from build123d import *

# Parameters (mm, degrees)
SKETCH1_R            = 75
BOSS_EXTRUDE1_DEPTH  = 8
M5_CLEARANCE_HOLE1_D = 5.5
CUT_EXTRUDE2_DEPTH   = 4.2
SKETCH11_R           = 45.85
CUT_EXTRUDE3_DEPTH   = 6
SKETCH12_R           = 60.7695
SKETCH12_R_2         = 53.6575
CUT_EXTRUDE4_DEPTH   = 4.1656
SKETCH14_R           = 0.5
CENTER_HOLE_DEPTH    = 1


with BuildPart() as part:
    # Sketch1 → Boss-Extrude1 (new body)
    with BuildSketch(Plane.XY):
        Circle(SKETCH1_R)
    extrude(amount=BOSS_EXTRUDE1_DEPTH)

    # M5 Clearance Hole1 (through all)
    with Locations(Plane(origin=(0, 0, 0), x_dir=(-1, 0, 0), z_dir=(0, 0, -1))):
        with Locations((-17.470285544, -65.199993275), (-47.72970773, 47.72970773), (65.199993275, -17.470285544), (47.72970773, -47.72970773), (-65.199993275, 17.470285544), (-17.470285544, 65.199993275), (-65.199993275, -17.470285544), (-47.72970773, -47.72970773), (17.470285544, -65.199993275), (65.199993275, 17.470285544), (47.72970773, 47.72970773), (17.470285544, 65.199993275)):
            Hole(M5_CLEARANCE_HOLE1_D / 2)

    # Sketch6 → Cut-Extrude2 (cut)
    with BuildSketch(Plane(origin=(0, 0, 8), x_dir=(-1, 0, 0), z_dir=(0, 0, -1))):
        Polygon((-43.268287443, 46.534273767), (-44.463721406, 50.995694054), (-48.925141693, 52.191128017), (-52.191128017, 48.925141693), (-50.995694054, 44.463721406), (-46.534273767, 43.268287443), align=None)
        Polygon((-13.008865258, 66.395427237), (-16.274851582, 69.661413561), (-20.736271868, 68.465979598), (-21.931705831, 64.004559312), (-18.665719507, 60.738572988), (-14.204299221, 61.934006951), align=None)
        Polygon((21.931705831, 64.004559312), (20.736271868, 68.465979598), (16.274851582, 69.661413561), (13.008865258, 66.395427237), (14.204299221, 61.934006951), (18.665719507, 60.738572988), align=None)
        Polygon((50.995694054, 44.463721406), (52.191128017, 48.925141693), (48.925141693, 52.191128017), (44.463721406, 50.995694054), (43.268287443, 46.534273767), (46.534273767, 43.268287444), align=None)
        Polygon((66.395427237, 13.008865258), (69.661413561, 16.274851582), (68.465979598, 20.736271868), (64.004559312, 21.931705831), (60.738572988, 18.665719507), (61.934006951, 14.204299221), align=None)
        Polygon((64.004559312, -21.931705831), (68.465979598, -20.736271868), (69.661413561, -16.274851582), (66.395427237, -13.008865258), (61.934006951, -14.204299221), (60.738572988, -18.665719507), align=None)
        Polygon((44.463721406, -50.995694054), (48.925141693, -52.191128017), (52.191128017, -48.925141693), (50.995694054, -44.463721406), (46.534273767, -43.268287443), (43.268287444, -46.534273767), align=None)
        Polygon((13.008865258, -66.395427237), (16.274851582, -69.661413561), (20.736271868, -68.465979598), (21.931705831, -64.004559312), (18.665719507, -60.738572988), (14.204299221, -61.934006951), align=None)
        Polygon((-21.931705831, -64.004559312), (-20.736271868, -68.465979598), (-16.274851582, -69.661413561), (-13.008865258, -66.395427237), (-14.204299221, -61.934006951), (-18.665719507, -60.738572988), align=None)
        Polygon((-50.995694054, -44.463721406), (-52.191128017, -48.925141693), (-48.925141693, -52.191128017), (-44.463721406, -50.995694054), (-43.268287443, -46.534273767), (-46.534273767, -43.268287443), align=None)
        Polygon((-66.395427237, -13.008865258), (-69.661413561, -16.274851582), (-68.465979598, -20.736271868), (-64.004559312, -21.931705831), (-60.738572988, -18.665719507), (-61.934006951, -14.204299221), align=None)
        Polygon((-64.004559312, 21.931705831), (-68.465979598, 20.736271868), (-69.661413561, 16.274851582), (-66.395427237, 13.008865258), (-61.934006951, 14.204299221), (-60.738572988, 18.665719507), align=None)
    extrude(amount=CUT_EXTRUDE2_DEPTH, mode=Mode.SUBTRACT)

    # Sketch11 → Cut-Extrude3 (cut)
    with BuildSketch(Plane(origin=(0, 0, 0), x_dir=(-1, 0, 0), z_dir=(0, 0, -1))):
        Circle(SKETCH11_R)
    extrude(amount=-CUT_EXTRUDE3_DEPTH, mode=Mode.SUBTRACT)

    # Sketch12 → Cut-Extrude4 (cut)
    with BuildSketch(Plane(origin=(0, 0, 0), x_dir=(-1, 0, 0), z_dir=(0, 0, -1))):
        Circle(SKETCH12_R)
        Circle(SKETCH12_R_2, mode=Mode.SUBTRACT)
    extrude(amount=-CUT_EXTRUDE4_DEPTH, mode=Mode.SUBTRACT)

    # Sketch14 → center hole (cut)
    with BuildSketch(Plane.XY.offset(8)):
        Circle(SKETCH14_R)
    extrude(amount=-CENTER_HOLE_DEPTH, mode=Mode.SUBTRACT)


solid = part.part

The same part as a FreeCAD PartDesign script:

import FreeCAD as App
import Part
import Sketcher

V = App.Vector
Q = App.Units.Quantity


def add_polygon(sketch, points):
    """Adds a closed chain of lines whose ends are joined by coincident constraints."""
    first, n = sketch.GeometryCount, len(points)
    for a, b in zip(points, points[1:] + points[:1]):
        sketch.addGeometry(Part.LineSegment(App.Vector(*a, 0), App.Vector(*b, 0)), False)
    for i in range(n):
        sketch.addConstraint(Sketcher.Constraint("Coincident", first + i, 2, first + (i + 1) % n, 1))

doc = App.newDocument("Part")
params = doc.addObject("Spreadsheet::Sheet", "Params")
for row, (alias, value) in enumerate([
    ("sketch1_diameter", "150 mm"),
    ("pad1_length", "8 mm"),
    ("sketch2_diameter", "5.5 mm"),
    ("hole_diameter", "5.5 mm"),
    ("pocket1_length", "4.2 mm"),
    ("sketch4_diameter", "91.7 mm"),
    ("pocket2_length", "6 mm"),
    ("pocket3_length", "4.1656 mm"),
    ("sketch6_diameter", "1 mm"),
    ("pocket4_length", "1 mm"),
], start=1):
    params.set(f"A{row}", alias)
    params.set(f"B{row}", "=" + value)
    params.setAlias(f"B{row}", alias)

body = doc.addObject("PartDesign::Body", "Body")

# Sketch on XY plane
sketch1 = body.newObject("Sketcher::SketchObject", "Sketch")
sketch1.AttachmentSupport = (doc.getObject("XY_Plane"), [""])
sketch1.MapMode = "FlatFace"
sketch1.addGeometry(Part.Circle(V(0, 0, 0), V(0, 0, 1), 75), False)
sketch1.addConstraint([
    Sketcher.Constraint("Coincident", 0, 3, -1, 1),
    Sketcher.Constraint("Diameter", 0, 150.0),
])
sketch1.setExpression("Constraints[1]", "Params.sketch1_diameter")
pad1 = body.newObject("PartDesign::Pad", "Pad")
pad1.Profile = sketch1
pad1.setExpression("Length", "Params.pad1_length")

# Sketch on XY plane
sketch2 = body.newObject("Sketcher::SketchObject", "Sketch001")
sketch2.AttachmentSupport = (doc.getObject("XY_Plane"), [""])
sketch2.MapMode = "FlatFace"
sketch2.addGeometry([
    Part.Circle(V(17.470286, -65.199993, 0), V(0, 0, 1), 2.75),  # 0
    Part.Circle(V(47.729708, 47.729708, 0), V(0, 0, 1), 2.75),  # 1
    Part.Circle(V(-65.199993, -17.470286, 0), V(0, 0, 1), 2.75),  # 2
    Part.Circle(V(-47.729708, -47.729708, 0), V(0, 0, 1), 2.75),  # 3
    Part.Circle(V(65.199993, 17.470286, 0), V(0, 0, 1), 2.75),  # 4
    Part.Circle(V(17.470286, 65.199993, 0), V(0, 0, 1), 2.75),  # 5
    Part.Circle(V(65.199993, -17.470286, 0), V(0, 0, 1), 2.75),  # 6
    Part.Circle(V(47.729708, -47.729708, 0), V(0, 0, 1), 2.75),  # 7
    Part.Circle(V(-17.470286, -65.199993, 0), V(0, 0, 1), 2.75),  # 8
    Part.Circle(V(-65.199993, 17.470286, 0), V(0, 0, 1), 2.75),  # 9
    Part.Circle(V(-47.729708, 47.729708, 0), V(0, 0, 1), 2.75),  # 10
    Part.Circle(V(-17.470286, 65.199993, 0), V(0, 0, 1), 2.75),  # 11
], False)
sketch2.addConstraint([
    Sketcher.Constraint("Equal", 0, 1),
    Sketcher.Constraint("Equal", 1, 2),
    Sketcher.Constraint("Equal", 2, 3),
    Sketcher.Constraint("Equal", 3, 4),
    Sketcher.Constraint("Equal", 4, 5),
    Sketcher.Constraint("Equal", 5, 6),
    Sketcher.Constraint("Equal", 6, 7),
    Sketcher.Constraint("Equal", 7, 8),
    Sketcher.Constraint("Equal", 8, 9),
    Sketcher.Constraint("Equal", 9, 10),
    Sketcher.Constraint("Equal", 10, 11),
    Sketcher.Constraint("Symmetric", 1, 3, 3, 3, -1, 1),
    Sketcher.Constraint("Symmetric", 2, 3, 4, 3, -1, 1),
    Sketcher.Constraint("Symmetric", 5, 3, 8, 3, -1, 1),
    Sketcher.Constraint("Symmetric", 6, 3, 9, 3, -1, 1),
    Sketcher.Constraint("Symmetric", 7, 3, 10, 3, -1, 1),
    Sketcher.Constraint("Symmetric", 0, 3, 11, 3, -1, 1),
    Sketcher.Constraint("Symmetric", 2, 3, 6, 3, -2),
    Sketcher.Constraint("Symmetric", 3, 3, 7, 3, -2),
    Sketcher.Constraint("Symmetric", 0, 3, 8, 3, -2),
    Sketcher.Constraint("Diameter", 0, 5.5),
    Sketcher.Constraint("DistanceY", 0, 3, 1, 3, 112.929701),
    Sketcher.Constraint("DistanceX", 2, 3, 1, 3, 112.929701),
    Sketcher.Constraint("DistanceX", 2, 3, 0, 3, 82.670279),
    Sketcher.Constraint("DistanceY", 0, 3, 4, 3, 82.670279),
    Sketcher.Constraint("DistanceY", 2, 3, 4, 3, 34.940571),
    Sketcher.Constraint("DistanceX", 8, 3, 0, 3, 34.940571),
])
sketch2.setExpression("Constraints[20]", "Params.sketch2_diameter")
doc.recompute()
hole = body.newObject("PartDesign::Hole", "Hole")
hole.Profile = sketch2
hole.ThreadType = "None"
hole.setExpression("Diameter", "Params.hole_diameter")
hole.DepthType = "ThroughAll"
hole.Reversed = True

# Sketch on XY plane
sketch3 = body.newObject("Sketcher::SketchObject", "Sketch002")
sketch3.AttachmentSupport = (doc.getObject("XY_Plane"), [""])
sketch3.MapMode = "FlatFace"
sketch3.AttachmentOffset = App.Placement(V(0, 0, 8), App.Rotation())
add_polygon(sketch3, [(43.268287, 46.534274), (44.463721, 50.995694), (48.925142, 52.191128), (52.191128, 48.925142), (50.995694, 44.463721), (46.534274, 43.268287)])  # lines 0-5
add_polygon(sketch3, [(13.008865, 66.395427), (16.274852, 69.661414), (20.736272, 68.46598), (21.931706, 64.004559), (18.66572, 60.738573), (14.204299, 61.934007)])  # lines 6-11
add_polygon(sketch3, [(-21.931706, 64.004559), (-20.736272, 68.46598), (-16.274852, 69.661414), (-13.008865, 66.395427), (-14.204299, 61.934007), (-18.66572, 60.738573)])  # lines 12-17
add_polygon(sketch3, [(-50.995694, 44.463721), (-52.191128, 48.925142), (-48.925142, 52.191128), (-44.463721, 50.995694), (-43.268287, 46.534274), (-46.534274, 43.268287)])  # lines 18-23
add_polygon(sketch3, [(-66.395427, 13.008865), (-69.661414, 16.274852), (-68.46598, 20.736272), (-64.004559, 21.931706), (-60.738573, 18.66572), (-61.934007, 14.204299)])  # lines 24-29
add_polygon(sketch3, [(-64.004559, -21.931706), (-68.46598, -20.736272), (-69.661414, -16.274852), (-66.395427, -13.008865), (-61.934007, -14.204299), (-60.738573, -18.66572)])  # lines 30-35
add_polygon(sketch3, [(-44.463721, -50.995694), (-48.925142, -52.191128), (-52.191128, -48.925142), (-50.995694, -44.463721), (-46.534274, -43.268287), (-43.268287, -46.534274)])  # lines 36-41
add_polygon(sketch3, [(-13.008865, -66.395427), (-16.274852, -69.661414), (-20.736272, -68.46598), (-21.931706, -64.004559), (-18.66572, -60.738573), (-14.204299, -61.934007)])  # lines 42-47
add_polygon(sketch3, [(21.931706, -64.004559), (20.736272, -68.46598), (16.274852, -69.661414), (13.008865, -66.395427), (14.204299, -61.934007), (18.66572, -60.738573)])  # lines 48-53
add_polygon(sketch3, [(50.995694, -44.463721), (52.191128, -48.925142), (48.925142, -52.191128), (44.463721, -50.995694), (43.268287, -46.534274), (46.534274, -43.268287)])  # lines 54-59
add_polygon(sketch3, [(66.395427, -13.008865), (69.661414, -16.274852), (68.46598, -20.736272), (64.004559, -21.931706), (60.738573, -18.66572), (61.934007, -14.204299)])  # lines 60-65
add_polygon(sketch3, [(64.004559, 21.931706), (68.46598, 20.736272), (69.661414, 16.274852), (66.395427, 13.008865), (61.934007, 14.204299), (60.738573, 18.66572)])  # lines 66-71
sketch3.addConstraint([
    Sketcher.Constraint("Symmetric", 1, 2, 36, 2, -1, 1),
    Sketcher.Constraint("Symmetric", 2, 2, 37, 2, -1, 1),
    Sketcher.Constraint("Symmetric", 3, 2, 38, 2, -1, 1),
    Sketcher.Constraint("Symmetric", 4, 2, 39, 2, -1, 1),
    Sketcher.Constraint("Symmetric", 5, 2, 40, 2, -1, 1),
    Sketcher.Constraint("Symmetric", 0, 2, 41, 2, -1, 1),
    Sketcher.Constraint("Symmetric", 6, 2, 42, 2, -1, 1),
    Sketcher.Constraint("Symmetric", 7, 2, 43, 2, -1, 1),
    Sketcher.Constraint("Symmetric", 8, 2, 44, 2, -1, 1),
    Sketcher.Constraint("Symmetric", 9, 2, 45, 2, -1, 1),
    Sketcher.Constraint("Symmetric", 10, 2, 46, 2, -1, 1),
    Sketcher.Constraint("Symmetric", 11, 2, 47, 2, -1, 1),
    Sketcher.Constraint("Symmetric", 12, 2, 48, 2, -1, 1),
    Sketcher.Constraint("Symmetric", 13, 2, 49, 2, -1, 1),
    Sketcher.Constraint("Symmetric", 14, 2, 50, 2, -1, 1),
    Sketcher.Constraint("Symmetric", 15, 2, 51, 2, -1, 1),
    Sketcher.Constraint("Symmetric", 16, 2, 52, 2, -1, 1),
    Sketcher.Constraint("Symmetric", 17, 2, 53, 2, -1, 1),
    Sketcher.Constraint("Symmetric", 18, 2, 54, 2, -1, 1),
    Sketcher.Constraint("Symmetric", 19, 2, 55, 2, -1, 1),
    Sketcher.Constraint("Symmetric", 20, 2, 56, 2, -1, 1),
    Sketcher.Constraint("Symmetric", 21, 2, 57, 2, -1, 1),
    Sketcher.Constraint("Symmetric", 22, 2, 58, 2, -1, 1),
    Sketcher.Constraint("Symmetric", 23, 2, 59, 2, -1, 1),
    Sketcher.Constraint("Symmetric", 24, 2, 60, 2, -1, 1),
    Sketcher.Constraint("Symmetric", 25, 2, 61, 2, -1, 1),
    Sketcher.Constraint("Symmetric", 26, 2, 62, 2, -1, 1),
    Sketcher.Constraint("Symmetric", 27, 2, 63, 2, -1, 1),
    Sketcher.Constraint("Symmetric", 28, 2, 64, 2, -1, 1),
    Sketcher.Constraint("Symmetric", 29, 2, 65, 2, -1, 1),
    Sketcher.Constraint("Symmetric", 30, 2, 66, 2, -1, 1),
    Sketcher.Constraint("Symmetric", 31, 2, 67, 2, -1, 1),
    Sketcher.Constraint("Symmetric", 32, 2, 68, 2, -1, 1),
    Sketcher.Constraint("Symmetric", 33, 2, 69, 2, -1, 1),
    Sketcher.Constraint("Symmetric", 34, 2, 70, 2, -1, 1),
    Sketcher.Constraint("Symmetric", 35, 2, 71, 2, -1, 1),
    Sketcher.Constraint("Symmetric", 7, 2, 12, 2, -2),
    Sketcher.Constraint("Symmetric", 6, 2, 13, 2, -2),
    Sketcher.Constraint("Symmetric", 11, 2, 14, 2, -2),
    Sketcher.Constraint("Symmetric", 10, 2, 15, 2, -2),
    Sketcher.Constraint("Symmetric", 9, 2, 16, 2, -2),
    Sketcher.Constraint("Symmetric", 8, 2, 17, 2, -2),
    Sketcher.Constraint("Symmetric", 2, 2, 18, 2, -2),
    Sketcher.Constraint("Symmetric", 1, 2, 19, 2, -2),
    Sketcher.Constraint("Symmetric", 0, 2, 20, 2, -2),
    Sketcher.Constraint("Symmetric", 5, 2, 21, 2, -2),
    Sketcher.Constraint("Symmetric", 4, 2, 22, 2, -2),
    Sketcher.Constraint("Symmetric", 3, 2, 23, 2, -2),
    Sketcher.Constraint("Symmetric", 31, 2, 60, 2, -2),
    Sketcher.Constraint("Symmetric", 30, 2, 61, 2, -2),
    Sketcher.Constraint("Symmetric", 35, 2, 62, 2, -2),
    Sketcher.Constraint("Symmetric", 34, 2, 63, 2, -2),
    Sketcher.Constraint("Symmetric", 33, 2, 64, 2, -2),
    Sketcher.Constraint("Symmetric", 32, 2, 65, 2, -2),
    Sketcher.Constraint("Parallel", 0, 3),
    Sketcher.Constraint("Parallel", 1, 4),
    Sketcher.Constraint("Parallel", 2, 5),
    Sketcher.Constraint("Perpendicular", 5, 6),
    Sketcher.Constraint("Perpendicular", 3, 7),
    Sketcher.Constraint("Perpendicular", 4, 8),
    Sketcher.Constraint("Parallel", 6, 9),
    Sketcher.Constraint("Parallel", 7, 10),
    Sketcher.Constraint("Parallel", 8, 11),
    Sketcher.Constraint("Perpendicular", 10, 12),
    Sketcher.Constraint("Perpendicular", 9, 14),
    Sketcher.Constraint("Perpendicular", 22, 24),
    Sketcher.Constraint("Perpendicular", 23, 25),
    Sketcher.Constraint("Perpendicular", 21, 26),
    Sketcher.Constraint("Parallel", 24, 27),
    Sketcher.Constraint("Parallel", 25, 28),
    Sketcher.Constraint("Parallel", 26, 29),
    Sketcher.Constraint("Equal", 0, 1),
    Sketcher.Constraint("Equal", 1, 2),
    Sketcher.Constraint("Equal", 2, 3),
    Sketcher.Constraint("Equal", 5, 6),
    Sketcher.Constraint("Equal", 6, 7),
    Sketcher.Constraint("Equal", 7, 8),
    Sketcher.Constraint("Equal", 8, 9),
    Sketcher.Constraint("Equal", 23, 24),
    Sketcher.Constraint("Equal", 24, 25),
    Sketcher.Constraint("Equal", 25, 26),
    Sketcher.Constraint("Equal", 26, 27),
    Sketcher.Constraint("Angle", 0, Q("75 deg")),
    Sketcher.Constraint("DistanceX", -1, 1, 10, 2, 14.204299),
    Sketcher.Constraint("DistanceY", -1, 1, 28, 2, 14.204299),
    Sketcher.Constraint("DistanceX", -1, 1, 0, 2, 44.463721),
    Sketcher.Constraint("DistanceX", -1, 1, 1, 2, 48.925142),
    Sketcher.Constraint("DistanceY", -1, 1, 1, 2, 52.191128),
    Sketcher.Constraint("DistanceY", -1, 1, 7, 2, 68.46598),
    Sketcher.Constraint("DistanceX", 25, 2, -1, 1, 68.46598),
])
pocket1 = body.newObject("PartDesign::Pocket", "Pocket")
pocket1.Profile = sketch3
pocket1.setExpression("Length", "Params.pocket1_length")

# Sketch on XY plane
sketch4 = body.newObject("Sketcher::SketchObject", "Sketch003")
sketch4.AttachmentSupport = (doc.getObject("XY_Plane"), [""])
sketch4.MapMode = "FlatFace"
sketch4.addGeometry(Part.Circle(V(0, 0, 0), V(0, 0, 1), 45.85), False)
sketch4.addConstraint([
    Sketcher.Constraint("Coincident", 0, 3, -1, 1),
    Sketcher.Constraint("Diameter", 0, 91.7),
])
sketch4.setExpression("Constraints[1]", "Params.sketch4_diameter")
pocket2 = body.newObject("PartDesign::Pocket", "Pocket001")
pocket2.Profile = sketch4
pocket2.setExpression("Length", "Params.pocket2_length")
pocket2.Reversed = True

# Sketch on XY plane
sketch5 = body.newObject("Sketcher::SketchObject", "Sketch004")
sketch5.AttachmentSupport = (doc.getObject("XY_Plane"), [""])
sketch5.MapMode = "FlatFace"
sketch5.addGeometry([
    Part.Circle(V(0, 0, 0), V(0, 0, 1), 60.7695),
    Part.Circle(V(0, 0, 0), V(0, 0, 1), 53.6575),
], False)
sketch5.addConstraint([
    Sketcher.Constraint("Coincident", 0, 3, -1, 1),
    Sketcher.Constraint("Coincident", 1, 3, -1, 1),
    Sketcher.Constraint("Diameter", 0, 121.539),
    Sketcher.Constraint("Diameter", 1, 107.315),
])
pocket3 = body.newObject("PartDesign::Pocket", "Pocket002")
pocket3.Profile = sketch5
pocket3.setExpression("Length", "Params.pocket3_length")
pocket3.Reversed = True

# Sketch on XY plane
sketch6 = body.newObject("Sketcher::SketchObject", "Sketch005")
sketch6.AttachmentSupport = (doc.getObject("XY_Plane"), [""])
sketch6.MapMode = "FlatFace"
sketch6.AttachmentOffset = App.Placement(V(0, 0, 8), App.Rotation())
sketch6.addGeometry(Part.Circle(V(0, 0, 0), V(0, 0, 1), 0.5), False)
sketch6.addConstraint([
    Sketcher.Constraint("Coincident", 0, 3, -1, 1),
    Sketcher.Constraint("Diameter", 0, 1.0),
])
sketch6.setExpression("Constraints[1]", "Params.sketch6_diameter")
pocket4 = body.newObject("PartDesign::Pocket", "Pocket003")
pocket4.Profile = sketch6
pocket4.setExpression("Length", "Params.pocket4_length")

doc.recompute()
